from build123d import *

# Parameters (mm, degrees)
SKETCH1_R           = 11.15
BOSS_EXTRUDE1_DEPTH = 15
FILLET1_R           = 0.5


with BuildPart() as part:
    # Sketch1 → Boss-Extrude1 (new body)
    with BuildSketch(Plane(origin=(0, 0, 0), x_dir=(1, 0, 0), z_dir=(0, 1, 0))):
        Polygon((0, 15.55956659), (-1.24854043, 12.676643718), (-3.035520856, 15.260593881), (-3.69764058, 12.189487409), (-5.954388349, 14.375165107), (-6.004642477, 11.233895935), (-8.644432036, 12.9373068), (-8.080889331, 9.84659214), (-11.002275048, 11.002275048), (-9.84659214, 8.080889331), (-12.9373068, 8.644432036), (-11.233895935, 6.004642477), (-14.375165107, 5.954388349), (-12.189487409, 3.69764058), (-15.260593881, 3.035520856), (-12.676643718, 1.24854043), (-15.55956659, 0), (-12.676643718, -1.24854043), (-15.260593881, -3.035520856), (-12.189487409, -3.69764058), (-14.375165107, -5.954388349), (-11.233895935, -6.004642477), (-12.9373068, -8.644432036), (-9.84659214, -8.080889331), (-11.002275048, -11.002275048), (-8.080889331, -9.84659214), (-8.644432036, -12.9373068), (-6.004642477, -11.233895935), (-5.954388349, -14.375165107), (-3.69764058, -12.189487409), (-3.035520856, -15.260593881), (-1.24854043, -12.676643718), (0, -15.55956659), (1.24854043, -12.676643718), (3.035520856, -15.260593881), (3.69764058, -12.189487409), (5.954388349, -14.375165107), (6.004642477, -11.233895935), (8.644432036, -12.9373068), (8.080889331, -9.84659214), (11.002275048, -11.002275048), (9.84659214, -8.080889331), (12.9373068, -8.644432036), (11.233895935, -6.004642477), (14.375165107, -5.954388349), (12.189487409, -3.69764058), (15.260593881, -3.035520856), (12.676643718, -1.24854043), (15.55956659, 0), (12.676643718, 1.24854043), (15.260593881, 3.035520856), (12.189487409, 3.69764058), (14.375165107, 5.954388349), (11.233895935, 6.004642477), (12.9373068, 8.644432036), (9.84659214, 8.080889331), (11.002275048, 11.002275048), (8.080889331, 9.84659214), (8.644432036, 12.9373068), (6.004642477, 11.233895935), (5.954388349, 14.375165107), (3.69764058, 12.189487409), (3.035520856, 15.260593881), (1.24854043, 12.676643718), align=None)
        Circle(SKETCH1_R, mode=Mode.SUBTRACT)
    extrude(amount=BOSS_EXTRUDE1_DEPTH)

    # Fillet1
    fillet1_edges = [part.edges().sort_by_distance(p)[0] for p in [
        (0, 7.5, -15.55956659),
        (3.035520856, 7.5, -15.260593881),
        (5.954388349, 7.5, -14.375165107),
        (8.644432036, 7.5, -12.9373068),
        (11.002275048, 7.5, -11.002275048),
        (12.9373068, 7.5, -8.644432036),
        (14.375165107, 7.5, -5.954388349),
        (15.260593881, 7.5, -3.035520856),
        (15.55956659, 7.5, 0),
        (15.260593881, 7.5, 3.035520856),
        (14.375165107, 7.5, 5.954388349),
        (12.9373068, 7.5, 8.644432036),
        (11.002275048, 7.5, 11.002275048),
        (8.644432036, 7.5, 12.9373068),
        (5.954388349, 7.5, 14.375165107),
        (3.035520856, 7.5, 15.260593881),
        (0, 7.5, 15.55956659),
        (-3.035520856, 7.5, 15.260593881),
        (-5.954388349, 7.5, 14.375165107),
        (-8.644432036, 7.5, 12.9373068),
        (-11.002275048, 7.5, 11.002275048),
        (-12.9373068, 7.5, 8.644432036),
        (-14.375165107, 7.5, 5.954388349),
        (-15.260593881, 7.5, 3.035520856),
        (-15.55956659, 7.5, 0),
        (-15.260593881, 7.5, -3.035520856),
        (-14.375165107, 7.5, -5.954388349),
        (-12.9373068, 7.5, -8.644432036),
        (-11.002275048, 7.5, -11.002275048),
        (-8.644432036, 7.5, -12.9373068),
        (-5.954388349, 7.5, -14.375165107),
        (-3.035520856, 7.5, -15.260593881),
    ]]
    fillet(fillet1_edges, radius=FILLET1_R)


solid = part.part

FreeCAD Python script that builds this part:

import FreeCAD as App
import Part
import Sketcher


def edges_at(feature, points):
    """Names of the edges that pass closest to the given points."""
    edges = feature.Shape.Edges
    near = lambda p: min(range(len(edges)), key=lambda i: edges[i].distToShape(Part.Vertex(*p))[0])
    return sorted({f"Edge{near(p) + 1}" for p in points})

doc = App.newDocument("Part")
params = doc.addObject("Spreadsheet::Sheet", "Params")
for row, (alias, value) in enumerate([
    ("sketch1_diameter", "22.3 mm"),
    ("pad1_length", "15 mm"),
    ("fillet_radius", "0.5 mm"),
], start=1):
    params.set(f"A{row}", alias)
    params.set(f"B{row}", "=" + value)
    params.setAlias(f"B{row}", alias)

body = doc.addObject("PartDesign::Body", "Body")

sketch1 = body.newObject("Sketcher::SketchObject", "Sketch")
sketch1.AttachmentSupport = (doc.getObject("XZ_Plane"), [""])
sketch1.MapMode = "FlatFace"
sketch1.addGeometry([
    Part.LineSegment(App.Vector(0, -15.559567, 0), App.Vector(-1.24854, -12.676644, 0)),
    Part.LineSegment(App.Vector(-1.24854, -12.676644, 0), App.Vector(-3.035521, -15.260594, 0)),
    Part.LineSegment(App.Vector(-3.035521, -15.260594, 0), App.Vector(-3.697641, -12.189487, 0)),
    Part.LineSegment(App.Vector(-3.697641, -12.189487, 0), App.Vector(-5.954388, -14.375165, 0)),
    Part.LineSegment(App.Vector(-5.954388, -14.375165, 0), App.Vector(-6.004642, -11.233896, 0)),
    Part.LineSegment(App.Vector(-6.004642, -11.233896, 0), App.Vector(-8.644432, -12.937307, 0)),
    Part.LineSegment(App.Vector(-8.644432, -12.937307, 0), App.Vector(-8.080889, -9.846592, 0)),
    Part.LineSegment(App.Vector(-8.080889, -9.846592, 0), App.Vector(-11.002275, -11.002275, 0)),
    Part.LineSegment(App.Vector(-11.002275, -11.002275, 0), App.Vector(-9.846592, -8.080889, 0)),
    Part.LineSegment(App.Vector(-9.846592, -8.080889, 0), App.Vector(-12.937307, -8.644432, 0)),
    Part.LineSegment(App.Vector(-12.937307, -8.644432, 0), App.Vector(-11.233896, -6.004642, 0)),
    Part.LineSegment(App.Vector(-11.233896, -6.004642, 0), App.Vector(-14.375165, -5.954388, 0)),
    Part.LineSegment(App.Vector(-14.375165, -5.954388, 0), App.Vector(-12.189487, -3.697641, 0)),
    Part.LineSegment(App.Vector(-12.189487, -3.697641, 0), App.Vector(-15.260594, -3.035521, 0)),
    Part.LineSegment(App.Vector(-15.260594, -3.035521, 0), App.Vector(-12.676644, -1.24854, 0)),
    Part.LineSegment(App.Vector(-12.676644, -1.24854, 0), App.Vector(-15.559567, 0, 0)),
    Part.LineSegment(App.Vector(-15.559567, 0, 0), App.Vector(-12.676644, 1.24854, 0)),
    Part.LineSegment(App.Vector(-12.676644, 1.24854, 0), App.Vector(-15.260594, 3.035521, 0)),
    Part.LineSegment(App.Vector(-15.260594, 3.035521, 0), App.Vector(-12.189487, 3.697641, 0)),
    Part.LineSegment(App.Vector(-12.189487, 3.697641, 0), App.Vector(-14.375165, 5.954388, 0)),
    Part.LineSegment(App.Vector(-14.375165, 5.954388, 0), App.Vector(-11.233896, 6.004642, 0)),
    Part.LineSegment(App.Vector(-11.233896, 6.004642, 0), App.Vector(-12.937307, 8.644432, 0)),
    Part.LineSegment(App.Vector(-12.937307, 8.644432, 0), App.Vector(-9.846592, 8.080889, 0)),
    Part.LineSegment(App.Vector(-9.846592, 8.080889, 0), App.Vector(-11.002275, 11.002275, 0)),
    Part.LineSegment(App.Vector(-11.002275, 11.002275, 0), App.Vector(-8.080889, 9.846592, 0)),
    Part.LineSegment(App.Vector(-8.080889, 9.846592, 0), App.Vector(-8.644432, 12.937307, 0)),
    Part.LineSegment(App.Vector(-8.644432, 12.937307, 0), App.Vector(-6.004642, 11.233896, 0)),
    Part.LineSegment(App.Vector(-6.004642, 11.233896, 0), App.Vector(-5.954388, 14.375165, 0)),
    Part.LineSegment(App.Vector(-5.954388, 14.375165, 0), App.Vector(-3.697641, 12.189487, 0)),
    Part.LineSegment(App.Vector(-3.697641, 12.189487, 0), App.Vector(-3.035521, 15.260594, 0)),
    Part.LineSegment(App.Vector(-3.035521, 15.260594, 0), App.Vector(-1.24854, 12.676644, 0)),
    Part.LineSegment(App.Vector(-1.24854, 12.676644, 0), App.Vector(0, 15.559567, 0)),
    Part.LineSegment(App.Vector(0, 15.559567, 0), App.Vector(1.24854, 12.676644, 0)),
    Part.LineSegment(App.Vector(1.24854, 12.676644, 0), App.Vector(3.035521, 15.260594, 0)),
    Part.LineSegment(App.Vector(3.035521, 15.260594, 0), App.Vector(3.697641, 12.189487, 0)),
    Part.LineSegment(App.Vector(3.697641, 12.189487, 0), App.Vector(5.954388, 14.375165, 0)),
    Part.LineSegment(App.Vector(5.954388, 14.375165, 0), App.Vector(6.004642, 11.233896, 0)),
    Part.LineSegment(App.Vector(6.004642, 11.233896, 0), App.Vector(8.644432, 12.937307, 0)),
    Part.LineSegment(App.Vector(8.644432, 12.937307, 0), App.Vector(8.080889, 9.846592, 0)),
    Part.LineSegment(App.Vector(8.080889, 9.846592, 0), App.Vector(11.002275, 11.002275, 0)),
    Part.LineSegment(App.Vector(11.002275, 11.002275, 0), App.Vector(9.846592, 8.080889, 0)),
    Part.LineSegment(App.Vector(9.846592, 8.080889, 0), App.Vector(12.937307, 8.644432, 0)),
    Part.LineSegment(App.Vector(12.937307, 8.644432, 0), App.Vector(11.233896, 6.004642, 0)),
    Part.LineSegment(App.Vector(11.233896, 6.004642, 0), App.Vector(14.375165, 5.954388, 0)),
    Part.LineSegment(App.Vector(14.375165, 5.954388, 0), App.Vector(12.189487, 3.697641, 0)),
    Part.LineSegment(App.Vector(12.189487, 3.697641, 0), App.Vector(15.260594, 3.035521, 0)),
    Part.LineSegment(App.Vector(15.260594, 3.035521, 0), App.Vector(12.676644, 1.24854, 0)),
    Part.LineSegment(App.Vector(12.676644, 1.24854, 0), App.Vector(15.559567, 0, 0)),
    Part.LineSegment(App.Vector(15.559567, 0, 0), App.Vector(12.676644, -1.24854, 0)),
    Part.LineSegment(App.Vector(12.676644, -1.24854, 0), App.Vector(15.260594, -3.035521, 0)),
    Part.LineSegment(App.Vector(15.260594, -3.035521, 0), App.Vector(12.189487, -3.697641, 0)),
    Part.LineSegment(App.Vector(12.189487, -3.697641, 0), App.Vector(14.375165, -5.954388, 0)),
    Part.LineSegment(App.Vector(14.375165, -5.954388, 0), App.Vector(11.233896, -6.004642, 0)),
    Part.LineSegment(App.Vector(11.233896, -6.004642, 0), App.Vector(12.937307, -8.644432, 0)),
    Part.LineSegment(App.Vector(12.937307, -8.644432, 0), App.Vector(9.846592, -8.080889, 0)),
    Part.LineSegment(App.Vector(9.846592, -8.080889, 0), App.Vector(11.002275, -11.002275, 0)),
    Part.LineSegment(App.Vector(11.002275, -11.002275, 0), App.Vector(8.080889, -9.846592, 0)),
    Part.LineSegment(App.Vector(8.080889, -9.846592, 0), App.Vector(8.644432, -12.937307, 0)),
    Part.LineSegment(App.Vector(8.644432, -12.937307, 0), App.Vector(6.004642, -11.233896, 0)),
    Part.LineSegment(App.Vector(6.004642, -11.233896, 0), App.Vector(5.954388, -14.375165, 0)),
    Part.LineSegment(App.Vector(5.954388, -14.375165, 0), App.Vector(3.697641, -12.189487, 0)),
    Part.LineSegment(App.Vector(3.697641, -12.189487, 0), App.Vector(3.035521, -15.260594, 0)),
    Part.LineSegment(App.Vector(3.035521, -15.260594, 0), App.Vector(1.24854, -12.676644, 0)),
    Part.LineSegment(App.Vector(1.24854, -12.676644, 0), App.Vector(0, -15.559567, 0)),
    Part.Circle(App.Vector(0, 0, 0), App.Vector(0, 0, 1), 11.15),
], False)
sketch1.addConstraint([
    Sketcher.Constraint("Coincident", 0, 2, 1, 1),
    Sketcher.Constraint("Coincident", 1, 2, 2, 1),
    Sketcher.Constraint("Coincident", 2, 2, 3, 1),
    Sketcher.Constraint("Coincident", 3, 2, 4, 1),
    Sketcher.Constraint("Coincident", 4, 2, 5, 1),
    Sketcher.Constraint("Coincident", 5, 2, 6, 1),
    Sketcher.Constraint("Coincident", 6, 2, 7, 1),
    Sketcher.Constraint("Coincident", 7, 2, 8, 1),
    Sketcher.Constraint("Coincident", 8, 2, 9, 1),
    Sketcher.Constraint("Coincident", 9, 2, 10, 1),
    Sketcher.Constraint("Coincident", 10, 2, 11, 1),
    Sketcher.Constraint("Coincident", 11, 2, 12, 1),
    Sketcher.Constraint("Coincident", 12, 2, 13, 1),
    Sketcher.Constraint("Coincident", 13, 2, 14, 1),
    Sketcher.Constraint("Coincident", 14, 2, 15, 1),
    Sketcher.Constraint("Coincident", 15, 2, 16, 1),
    Sketcher.Constraint("Coincident", 16, 2, 17, 1),
    Sketcher.Constraint("Coincident", 17, 2, 18, 1),
    Sketcher.Constraint("Coincident", 18, 2, 19, 1),
    Sketcher.Constraint("Coincident", 19, 2, 20, 1),
    Sketcher.Constraint("Coincident", 20, 2, 21, 1),
    Sketcher.Constraint("Coincident", 21, 2, 22, 1),
    Sketcher.Constraint("Coincident", 22, 2, 23, 1),
    Sketcher.Constraint("Coincident", 23, 2, 24, 1),
    Sketcher.Constraint("Coincident", 24, 2, 25, 1),
    Sketcher.Constraint("Coincident", 25, 2, 26, 1),
    Sketcher.Constraint("Coincident", 26, 2, 27, 1),
    Sketcher.Constraint("Coincident", 27, 2, 28, 1),
    Sketcher.Constraint("Coincident", 28, 2, 29, 1),
    Sketcher.Constraint("Coincident", 29, 2, 30, 1),
    Sketcher.Constraint("Coincident", 30, 2, 31, 1),
    Sketcher.Constraint("Coincident", 31, 2, 32, 1),
    Sketcher.Constraint("Coincident", 32, 2, 33, 1),
    Sketcher.Constraint("Coincident", 33, 2, 34, 1),
    Sketcher.Constraint("Coincident", 34, 2, 35, 1),
    Sketcher.Constraint("Coincident", 35, 2, 36, 1),
    Sketcher.Constraint("Coincident", 36, 2, 37, 1),
    Sketcher.Constraint("Coincident", 37, 2, 38, 1),
    Sketcher.Constraint("Coincident", 38, 2, 39, 1),
    Sketcher.Constraint("Coincident", 39, 2, 40, 1),
    Sketcher.Constraint("Coincident", 40, 2, 41, 1),
    Sketcher.Constraint("Coincident", 41, 2, 42, 1),
    Sketcher.Constraint("Coincident", 42, 2, 43, 1),
    Sketcher.Constraint("Coincident", 43, 2, 44, 1),
    Sketcher.Constraint("Coincident", 44, 2, 45, 1),
    Sketcher.Constraint("Coincident", 45, 2, 46, 1),
    Sketcher.Constraint("Coincident", 46, 2, 47, 1),
    Sketcher.Constraint("Coincident", 47, 2, 48, 1),
    Sketcher.Constraint("Coincident", 48, 2, 49, 1),
    Sketcher.Constraint("Coincident", 49, 2, 50, 1),
    Sketcher.Constraint("Coincident", 50, 2, 51, 1),
    Sketcher.Constraint("Coincident", 51, 2, 52, 1),
    Sketcher.Constraint("Coincident", 52, 2, 53, 1),
    Sketcher.Constraint("Coincident", 53, 2, 54, 1),
    Sketcher.Constraint("Coincident", 54, 2, 55, 1),
    Sketcher.Constraint("Coincident", 55, 2, 56, 1),
    Sketcher.Constraint("Coincident", 56, 2, 57, 1),
    Sketcher.Constraint("Coincident", 57, 2, 58, 1),
    Sketcher.Constraint("Coincident", 58, 2, 59, 1),
    Sketcher.Constraint("Coincident", 59, 2, 60, 1),
    Sketcher.Constraint("Coincident", 60, 2, 61, 1),
    Sketcher.Constraint("Coincident", 61, 2, 62, 1),
    Sketcher.Constraint("Coincident", 62, 2, 63, 1),
    Sketcher.Constraint("Coincident", 63, 2, 0, 1),
    Sketcher.Constraint("Coincident", 64, 3, -1, 1),
    Sketcher.Constraint("Symmetric", 0, 2, 32, 2, -1, 1),
    Sketcher.Constraint("Symmetric", 1, 2, 33, 2, -1, 1),
    Sketcher.Constraint("Symmetric", 2, 2, 34, 2, -1, 1),
    Sketcher.Constraint("Symmetric", 3, 2, 35, 2, -1, 1),
    Sketcher.Constraint("Symmetric", 4, 2, 36, 2, -1, 1),
    Sketcher.Constraint("Symmetric", 5, 2, 37, 2, -1, 1),
    Sketcher.Constraint("Symmetric", 6, 2, 38, 2, -1, 1),
    Sketcher.Constraint("Symmetric", 7, 2, 39, 2, -1, 1),
    Sketcher.Constraint("Symmetric", 8, 2, 40, 2, -1, 1),
    Sketcher.Constraint("Symmetric", 9, 2, 41, 2, -1, 1),
    Sketcher.Constraint("Symmetric", 10, 2, 42, 2, -1, 1),
    Sketcher.Constraint("Symmetric", 11, 2, 43, 2, -1, 1),
    Sketcher.Constraint("Symmetric", 12, 2, 44, 2, -1, 1),
    Sketcher.Constraint("Symmetric", 13, 2, 45, 2, -1, 1),
    Sketcher.Constraint("Symmetric", 14, 2, 46, 2, -1, 1),
    Sketcher.Constraint("Symmetric", 15, 2, 47, 2, -1, 1),
    Sketcher.Constraint("Symmetric", 16, 2, 48, 2, -1, 1),
    Sketcher.Constraint("Symmetric", 17, 2, 49, 2, -1, 1),
    Sketcher.Constraint("Symmetric", 18, 2, 50, 2, -1, 1),
    Sketcher.Constraint("Symmetric", 19, 2, 51, 2, -1, 1),
    Sketcher.Constraint("Symmetric", 20, 2, 52, 2, -1, 1),
    Sketcher.Constraint("Symmetric", 21, 2, 53, 2, -1, 1),
    Sketcher.Constraint("Symmetric", 22, 2, 54, 2, -1, 1),
    Sketcher.Constraint("Symmetric", 23, 2, 55, 2, -1, 1),
    Sketcher.Constraint("Symmetric", 24, 2, 56, 2, -1, 1),
    Sketcher.Constraint("Symmetric", 25, 2, 57, 2, -1, 1),
    Sketcher.Constraint("Symmetric", 26, 2, 58, 2, -1, 1),
    Sketcher.Constraint("Symmetric", 27, 2, 59, 2, -1, 1),
    Sketcher.Constraint("Symmetric", 28, 2, 60, 2, -1, 1),
    Sketcher.Constraint("Symmetric", 29, 2, 61, 2, -1, 1),
    Sketcher.Constraint("Symmetric", 30, 2, 62, 2, -1, 1),
    Sketcher.Constraint("Symmetric", 31, 2, 63, 2, -1, 1),
    Sketcher.Constraint("Symmetric", 30, 2, 32, 2, -2),
    Sketcher.Constraint("Symmetric", 29, 2, 33, 2, -2),
    Sketcher.Constraint("Symmetric", 28, 2, 34, 2, -2),
    Sketcher.Constraint("Symmetric", 27, 2, 35, 2, -2),
    Sketcher.Constraint("Symmetric", 26, 2, 36, 2, -2),
    Sketcher.Constraint("Symmetric", 25, 2, 37, 2, -2),
    Sketcher.Constraint("Symmetric", 24, 2, 38, 2, -2),
    Sketcher.Constraint("Symmetric", 23, 2, 39, 2, -2),
    Sketcher.Constraint("Symmetric", 22, 2, 40, 2, -2),
    Sketcher.Constraint("Symmetric", 21, 2, 41, 2, -2),
    Sketcher.Constraint("Symmetric", 20, 2, 42, 2, -2),
    Sketcher.Constraint("Symmetric", 19, 2, 43, 2, -2),
    Sketcher.Constraint("Symmetric", 18, 2, 44, 2, -2),
    Sketcher.Constraint("Symmetric", 17, 2, 45, 2, -2),
    Sketcher.Constraint("Symmetric", 16, 2, 46, 2, -2),
    Sketcher.Constraint("PointOnObject", 15, 2, -1),
    Sketcher.Constraint("PointOnObject", 31, 2, -2),
    Sketcher.Constraint("Perpendicular", 0, 16),
    Sketcher.Constraint("Perpendicular", 1, 17),
    Sketcher.Constraint("Perpendicular", 2, 18),
    Sketcher.Constraint("Perpendicular", 3, 19),
    Sketcher.Constraint("Perpendicular", 4, 20),
    Sketcher.Constraint("Perpendicular", 5, 21),
    Sketcher.Constraint("Perpendicular", 6, 22),
    Sketcher.Constraint("Perpendicular", 7, 23),
    Sketcher.Constraint("Equal", 0, 1),
    Sketcher.Constraint("Equal", 1, 2),
    Sketcher.Constraint("Equal", 2, 3),
    Sketcher.Constraint("Equal", 3, 4),
    Sketcher.Constraint("Equal", 4, 5),
    Sketcher.Constraint("Equal", 5, 6),
    Sketcher.Constraint("Equal", 6, 7),
    Sketcher.Constraint("Equal", 7, 8),
    Sketcher.Constraint("Equal", 8, 9),
    Sketcher.Constraint("Equal", 9, 10),
    Sketcher.Constraint("Equal", 10, 11),
    Sketcher.Constraint("Equal", 11, 12),
    Sketcher.Constraint("Equal", 12, 13),
    Sketcher.Constraint("Equal", 13, 14),
    Sketcher.Constraint("Equal", 14, 15),
    Sketcher.Constraint("Diameter", 64, 22.3),
    Sketcher.Constraint("Distance", 0, 3.141671),
    Sketcher.Constraint("DistanceX", 0, 2, -1, 1, 1.24854),
    Sketcher.Constraint("DistanceX", 1, 2, -1, 1, 3.035521),
    Sketcher.Constraint("DistanceX", 2, 2, -1, 1, 3.697641),
    Sketcher.Constraint("DistanceX", 3, 2, -1, 1, 5.954388),
    Sketcher.Constraint("DistanceX", 6, 2, -1, 1, 8.080889),
    Sketcher.Constraint("DistanceY", 0, 2, -1, 1, 12.676644),
    Sketcher.Constraint("DistanceX", 4, 2, -1, 1, 6.004642),
    Sketcher.Constraint("DistanceX", 5, 2, -1, 1, 8.644432),
])
sketch1.setExpression("Constraints[137]", "Params.sketch1_diameter")
pad1 = body.newObject("PartDesign::Pad", "Pad")
pad1.Profile = sketch1
pad1.setExpression("Length", "Params.pad1_length")
pad1.Reversed = True
doc.recompute()

fillet = body.newObject("PartDesign::Fillet", "Fillet")
fillet.Base = (pad1, edges_at(pad1, [
    (0, 7.5, -15.56),
    (3.036, 7.5, -15.261),
    (5.954, 7.5, -14.375),
    (8.644, 7.5, -12.937),
    (11.002, 7.5, -11.002),
    (12.937, 7.5, -8.644),
    (14.375, 7.5, -5.954),
    (15.261, 7.5, -3.036),
    (15.56, 7.5, 0),
    (15.261, 7.5, 3.036),
    (14.375, 7.5, 5.954),
    (12.937, 7.5, 8.644),
    (11.002, 7.5, 11.002),
    (8.644, 7.5, 12.937),
    (5.954, 7.5, 14.375),
    (3.036, 7.5, 15.261),
    (0, 7.5, 15.56),
    (-3.036, 7.5, 15.261),
    (-5.954, 7.5, 14.375),
    (-8.644, 7.5, 12.937),
    (-11.002, 7.5, 11.002),
    (-12.937, 7.5, 8.644),
    (-14.375, 7.5, 5.954),
    (-15.261, 7.5, 3.036),
    (-15.56, 7.5, 0),
    (-15.261, 7.5, -3.036),
    (-14.375, 7.5, -5.954),
    (-12.937, 7.5, -8.644),
    (-11.002, 7.5, -11.002),
    (-8.644, 7.5, -12.937),
    (-5.954, 7.5, -14.375),
    (-3.036, 7.5, -15.261),
]))
fillet.setExpression("Radius", "Params.fillet_radius")

doc.recompute()
